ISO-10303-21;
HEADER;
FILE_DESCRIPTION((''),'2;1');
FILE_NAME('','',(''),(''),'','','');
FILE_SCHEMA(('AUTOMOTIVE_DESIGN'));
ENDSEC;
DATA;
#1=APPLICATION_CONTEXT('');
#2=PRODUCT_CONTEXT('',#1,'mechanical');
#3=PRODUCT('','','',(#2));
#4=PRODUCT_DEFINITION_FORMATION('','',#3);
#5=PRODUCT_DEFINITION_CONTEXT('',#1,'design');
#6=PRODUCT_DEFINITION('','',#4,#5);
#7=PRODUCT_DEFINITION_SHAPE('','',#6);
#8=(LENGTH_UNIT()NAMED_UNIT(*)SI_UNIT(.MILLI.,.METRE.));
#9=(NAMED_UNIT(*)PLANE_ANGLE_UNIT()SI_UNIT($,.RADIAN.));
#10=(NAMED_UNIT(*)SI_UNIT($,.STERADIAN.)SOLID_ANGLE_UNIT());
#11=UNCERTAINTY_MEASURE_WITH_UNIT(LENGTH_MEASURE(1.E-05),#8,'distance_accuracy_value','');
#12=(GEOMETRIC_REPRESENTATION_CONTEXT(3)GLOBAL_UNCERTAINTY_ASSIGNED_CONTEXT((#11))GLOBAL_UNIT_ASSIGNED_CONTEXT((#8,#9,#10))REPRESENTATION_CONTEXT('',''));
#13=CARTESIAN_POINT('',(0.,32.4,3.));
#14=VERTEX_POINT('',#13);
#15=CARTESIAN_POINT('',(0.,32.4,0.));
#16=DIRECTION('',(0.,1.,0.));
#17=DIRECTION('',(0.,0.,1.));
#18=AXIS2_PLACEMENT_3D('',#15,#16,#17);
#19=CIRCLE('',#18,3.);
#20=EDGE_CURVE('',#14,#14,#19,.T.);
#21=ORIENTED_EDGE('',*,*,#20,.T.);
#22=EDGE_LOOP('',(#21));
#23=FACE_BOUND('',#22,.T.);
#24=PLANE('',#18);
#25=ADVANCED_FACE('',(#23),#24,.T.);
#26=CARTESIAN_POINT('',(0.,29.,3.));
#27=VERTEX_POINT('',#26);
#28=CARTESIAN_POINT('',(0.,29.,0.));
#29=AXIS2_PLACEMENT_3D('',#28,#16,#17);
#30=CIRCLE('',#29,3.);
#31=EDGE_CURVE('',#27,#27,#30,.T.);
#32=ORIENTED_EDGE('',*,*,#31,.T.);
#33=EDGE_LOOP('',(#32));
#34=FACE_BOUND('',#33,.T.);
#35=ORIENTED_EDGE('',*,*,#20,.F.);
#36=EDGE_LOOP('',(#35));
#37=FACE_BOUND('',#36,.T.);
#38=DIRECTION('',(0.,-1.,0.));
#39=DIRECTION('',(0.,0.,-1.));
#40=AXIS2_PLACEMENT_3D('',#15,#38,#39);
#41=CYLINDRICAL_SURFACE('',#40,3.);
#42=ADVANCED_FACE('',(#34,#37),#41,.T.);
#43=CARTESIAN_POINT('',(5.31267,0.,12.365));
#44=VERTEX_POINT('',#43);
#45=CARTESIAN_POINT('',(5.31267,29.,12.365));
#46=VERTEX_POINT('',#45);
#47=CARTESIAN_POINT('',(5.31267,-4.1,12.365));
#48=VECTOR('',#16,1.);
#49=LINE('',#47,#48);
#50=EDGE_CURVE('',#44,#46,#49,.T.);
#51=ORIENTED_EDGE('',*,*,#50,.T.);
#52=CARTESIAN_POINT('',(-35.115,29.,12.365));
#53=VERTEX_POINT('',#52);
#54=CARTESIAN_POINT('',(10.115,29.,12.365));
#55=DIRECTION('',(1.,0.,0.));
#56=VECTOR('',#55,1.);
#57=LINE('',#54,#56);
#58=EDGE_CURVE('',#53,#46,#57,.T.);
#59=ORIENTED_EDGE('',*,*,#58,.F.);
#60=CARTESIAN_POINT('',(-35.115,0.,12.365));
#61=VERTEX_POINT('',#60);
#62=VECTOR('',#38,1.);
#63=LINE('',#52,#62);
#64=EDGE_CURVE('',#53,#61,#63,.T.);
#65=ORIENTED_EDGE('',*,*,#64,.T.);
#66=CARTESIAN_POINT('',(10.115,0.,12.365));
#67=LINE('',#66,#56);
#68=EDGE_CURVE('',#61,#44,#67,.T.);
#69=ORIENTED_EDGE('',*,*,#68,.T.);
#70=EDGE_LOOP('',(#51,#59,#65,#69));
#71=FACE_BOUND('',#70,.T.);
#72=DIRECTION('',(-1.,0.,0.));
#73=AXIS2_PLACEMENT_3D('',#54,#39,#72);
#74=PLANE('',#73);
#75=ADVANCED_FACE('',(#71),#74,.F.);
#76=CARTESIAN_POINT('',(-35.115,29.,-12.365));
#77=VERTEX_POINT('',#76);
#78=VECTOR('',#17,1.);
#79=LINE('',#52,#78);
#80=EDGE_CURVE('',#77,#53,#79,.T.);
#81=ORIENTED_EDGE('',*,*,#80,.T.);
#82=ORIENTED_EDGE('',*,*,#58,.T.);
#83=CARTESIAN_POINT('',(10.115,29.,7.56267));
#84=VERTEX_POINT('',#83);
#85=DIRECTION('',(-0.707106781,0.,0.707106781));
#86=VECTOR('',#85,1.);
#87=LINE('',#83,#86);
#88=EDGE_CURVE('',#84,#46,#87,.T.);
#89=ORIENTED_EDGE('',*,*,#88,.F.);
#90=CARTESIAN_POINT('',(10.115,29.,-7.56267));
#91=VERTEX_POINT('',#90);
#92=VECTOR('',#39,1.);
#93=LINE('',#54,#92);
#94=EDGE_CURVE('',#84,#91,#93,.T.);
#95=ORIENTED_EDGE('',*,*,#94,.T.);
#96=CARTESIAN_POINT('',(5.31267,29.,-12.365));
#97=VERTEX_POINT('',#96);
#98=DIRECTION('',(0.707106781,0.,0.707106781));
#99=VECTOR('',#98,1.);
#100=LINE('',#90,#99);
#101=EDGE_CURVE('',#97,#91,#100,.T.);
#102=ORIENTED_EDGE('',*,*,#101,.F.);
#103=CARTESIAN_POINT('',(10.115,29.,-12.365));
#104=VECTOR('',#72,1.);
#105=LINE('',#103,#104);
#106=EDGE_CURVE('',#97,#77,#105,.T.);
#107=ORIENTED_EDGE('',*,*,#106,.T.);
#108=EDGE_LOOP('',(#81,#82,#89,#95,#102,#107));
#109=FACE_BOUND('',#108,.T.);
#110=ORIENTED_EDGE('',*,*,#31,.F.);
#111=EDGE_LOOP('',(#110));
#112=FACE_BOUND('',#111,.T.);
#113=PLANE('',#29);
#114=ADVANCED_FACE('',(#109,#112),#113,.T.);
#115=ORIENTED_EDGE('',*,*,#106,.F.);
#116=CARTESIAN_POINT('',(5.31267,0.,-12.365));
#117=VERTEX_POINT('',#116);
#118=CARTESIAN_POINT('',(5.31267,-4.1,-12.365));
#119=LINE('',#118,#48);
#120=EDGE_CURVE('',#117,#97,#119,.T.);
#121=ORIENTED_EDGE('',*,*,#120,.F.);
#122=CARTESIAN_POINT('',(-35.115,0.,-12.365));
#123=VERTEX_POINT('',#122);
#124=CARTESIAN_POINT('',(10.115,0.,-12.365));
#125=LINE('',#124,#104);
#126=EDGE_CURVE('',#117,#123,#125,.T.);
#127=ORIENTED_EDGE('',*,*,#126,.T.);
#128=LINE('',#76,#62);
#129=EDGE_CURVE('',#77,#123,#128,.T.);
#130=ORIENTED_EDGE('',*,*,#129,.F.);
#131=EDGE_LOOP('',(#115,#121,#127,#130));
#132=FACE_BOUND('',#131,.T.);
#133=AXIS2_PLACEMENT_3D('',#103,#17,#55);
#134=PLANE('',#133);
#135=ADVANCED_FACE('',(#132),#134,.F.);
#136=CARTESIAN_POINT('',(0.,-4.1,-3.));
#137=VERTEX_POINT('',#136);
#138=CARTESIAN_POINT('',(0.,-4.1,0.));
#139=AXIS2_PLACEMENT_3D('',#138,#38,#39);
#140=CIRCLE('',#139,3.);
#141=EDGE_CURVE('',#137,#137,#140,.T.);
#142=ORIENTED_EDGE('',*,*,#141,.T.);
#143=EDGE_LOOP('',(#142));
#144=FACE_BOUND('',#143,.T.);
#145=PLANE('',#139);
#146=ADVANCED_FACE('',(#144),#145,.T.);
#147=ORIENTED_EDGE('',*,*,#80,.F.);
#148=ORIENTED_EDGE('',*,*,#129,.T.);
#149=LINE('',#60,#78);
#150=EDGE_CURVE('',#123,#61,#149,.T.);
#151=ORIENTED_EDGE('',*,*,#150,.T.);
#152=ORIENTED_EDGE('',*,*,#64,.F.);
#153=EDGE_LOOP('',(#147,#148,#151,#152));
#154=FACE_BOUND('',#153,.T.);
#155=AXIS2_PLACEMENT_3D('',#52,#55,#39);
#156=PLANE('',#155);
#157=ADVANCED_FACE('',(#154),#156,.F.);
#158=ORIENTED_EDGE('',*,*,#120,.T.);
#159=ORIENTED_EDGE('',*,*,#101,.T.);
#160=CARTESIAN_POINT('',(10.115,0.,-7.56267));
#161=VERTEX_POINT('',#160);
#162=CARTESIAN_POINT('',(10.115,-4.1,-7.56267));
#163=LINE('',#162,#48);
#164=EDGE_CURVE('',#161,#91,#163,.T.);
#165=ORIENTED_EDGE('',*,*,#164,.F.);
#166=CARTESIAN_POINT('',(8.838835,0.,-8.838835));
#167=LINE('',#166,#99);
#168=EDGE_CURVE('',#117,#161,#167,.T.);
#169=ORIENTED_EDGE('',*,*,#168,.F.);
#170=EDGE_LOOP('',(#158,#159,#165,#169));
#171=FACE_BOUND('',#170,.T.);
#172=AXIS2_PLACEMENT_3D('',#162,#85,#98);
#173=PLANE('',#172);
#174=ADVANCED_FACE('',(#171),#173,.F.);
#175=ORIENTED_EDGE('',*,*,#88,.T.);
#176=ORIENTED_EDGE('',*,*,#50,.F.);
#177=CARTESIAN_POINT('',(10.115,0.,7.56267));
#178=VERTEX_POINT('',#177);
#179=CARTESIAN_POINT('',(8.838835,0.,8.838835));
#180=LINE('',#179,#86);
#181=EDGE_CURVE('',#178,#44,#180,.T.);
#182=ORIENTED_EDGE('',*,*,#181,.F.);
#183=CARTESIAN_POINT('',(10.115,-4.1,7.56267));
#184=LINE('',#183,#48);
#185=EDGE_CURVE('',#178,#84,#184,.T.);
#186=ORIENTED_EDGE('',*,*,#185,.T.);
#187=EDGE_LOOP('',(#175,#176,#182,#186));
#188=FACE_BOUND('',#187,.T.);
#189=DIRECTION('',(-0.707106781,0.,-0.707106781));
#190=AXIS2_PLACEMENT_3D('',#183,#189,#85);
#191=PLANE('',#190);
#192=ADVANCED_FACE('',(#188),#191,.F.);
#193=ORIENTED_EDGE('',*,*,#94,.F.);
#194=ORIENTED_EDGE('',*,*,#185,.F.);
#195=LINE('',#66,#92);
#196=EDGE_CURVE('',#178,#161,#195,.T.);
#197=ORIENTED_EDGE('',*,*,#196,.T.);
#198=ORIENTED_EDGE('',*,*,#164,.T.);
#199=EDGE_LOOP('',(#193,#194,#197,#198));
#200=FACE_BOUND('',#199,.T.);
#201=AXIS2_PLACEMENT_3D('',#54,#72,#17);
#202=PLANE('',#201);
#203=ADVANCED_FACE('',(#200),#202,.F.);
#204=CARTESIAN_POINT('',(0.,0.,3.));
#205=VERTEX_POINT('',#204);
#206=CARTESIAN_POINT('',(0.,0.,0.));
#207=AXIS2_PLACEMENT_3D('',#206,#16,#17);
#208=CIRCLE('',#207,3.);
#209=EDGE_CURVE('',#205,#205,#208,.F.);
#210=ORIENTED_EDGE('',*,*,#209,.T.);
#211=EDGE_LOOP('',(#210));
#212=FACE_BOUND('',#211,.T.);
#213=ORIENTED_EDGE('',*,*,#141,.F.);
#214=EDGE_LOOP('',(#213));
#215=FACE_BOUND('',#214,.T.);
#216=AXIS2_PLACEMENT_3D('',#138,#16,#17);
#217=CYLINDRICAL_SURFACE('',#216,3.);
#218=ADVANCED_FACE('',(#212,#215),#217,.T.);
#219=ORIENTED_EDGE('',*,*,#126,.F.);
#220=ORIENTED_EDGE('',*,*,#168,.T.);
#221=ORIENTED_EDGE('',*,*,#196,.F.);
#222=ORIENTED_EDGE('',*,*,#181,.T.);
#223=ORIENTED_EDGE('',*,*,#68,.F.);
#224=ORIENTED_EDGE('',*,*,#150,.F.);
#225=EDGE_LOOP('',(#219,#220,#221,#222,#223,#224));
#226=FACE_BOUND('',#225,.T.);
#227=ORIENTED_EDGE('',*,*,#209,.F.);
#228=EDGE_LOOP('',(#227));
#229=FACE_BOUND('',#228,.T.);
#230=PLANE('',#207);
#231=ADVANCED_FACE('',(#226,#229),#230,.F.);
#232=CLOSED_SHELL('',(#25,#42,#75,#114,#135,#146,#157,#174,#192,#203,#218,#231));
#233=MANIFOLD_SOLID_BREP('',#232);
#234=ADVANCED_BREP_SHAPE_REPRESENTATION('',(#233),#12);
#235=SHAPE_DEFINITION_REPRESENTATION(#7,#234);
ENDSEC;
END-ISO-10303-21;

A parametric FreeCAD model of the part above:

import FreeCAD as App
import Part
import Sketcher
from FreeCAD import Vector


def add_polygon(sketch, points):
    """Adds a closed chain of lines whose ends are joined by coincident constraints."""
    first, n = sketch.GeometryCount, len(points)
    for a, b in zip(points, points[1:] + points[:1]):
        sketch.addGeometry(Part.LineSegment(App.Vector(*a, 0), App.Vector(*b, 0)), False)
    for i in range(n):
        sketch.addConstraint(Sketcher.Constraint("Coincident", first + i, 2, first + (i + 1) % n, 1))

doc = App.newDocument("Part")
body = doc.addObject("PartDesign::Body", "Body")

sketch1 = body.newObject("Sketcher::SketchObject", "Sketch")
sketch1.AttachmentSupport = (doc.getObject("XZ_Plane"), [""])
sketch1.MapMode = "FlatFace"
add_polygon(sketch1, [(-35, -12), (-35, 12), (10, 12), (10, -12)])
sketch1.addConstraint(Sketcher.Constraint("Vertical", 0))
sketch1.addConstraint(Sketcher.Constraint("Horizontal", 1))
sketch1.addConstraint(Sketcher.Constraint("Vertical", 2))
sketch1.addConstraint(Sketcher.Constraint("Horizontal", 3))
sketch1.addConstraint(Sketcher.Constraint("DistanceX", 1, 1, 1, 2, 45.23))
sketch1.addConstraint(Sketcher.Constraint("DistanceY", 0, 1, 0, 2, 24.73))
sketch1.addConstraint(Sketcher.Constraint("DistanceX", 0, 2, -1, 1, 35.115))
sketch1.addConstraint(Sketcher.Constraint("DistanceY", -1, 1, 0, 2, 12.365))
pad1 = body.newObject("PartDesign::Pad", "Pad")
pad1.Profile = sketch1
pad1.Length = 29
pad1.Reversed = True

sketch2 = body.newObject("Sketcher::SketchObject", "Sketch001")
sketch2.AttachmentSupport = (doc.getObject("XZ_Plane"), [""])
sketch2.MapMode = "FlatFace"
sketch2.AttachmentOffset = App.Placement(Vector(0, 0, -29), App.Rotation())
sketch2.addGeometry(Part.Circle(Vector(0, 0, 0), Vector(0, 0, 1), 3), False)
sketch2.addConstraint(Sketcher.Constraint("Coincident", 0, 3, -1, 1))
sketch2.addConstraint(Sketcher.Constraint("Diameter", 0, 6.0))
pad2 = body.newObject("PartDesign::Pad", "Pad001")
pad2.Profile = sketch2
pad2.Length = 3.4
pad2.Reversed = True

sketch3 = body.newObject("Sketcher::SketchObject", "Sketch002")
sketch3.AttachmentSupport = (doc.getObject("XZ_Plane"), [""])
sketch3.MapMode = "FlatFace"
sketch3.AttachmentOffset = App.Placement(Vector(0, 0, 4.1), App.Rotation())
sketch3.addGeometry(Part.Circle(Vector(0, 0, 0), Vector(0, 0, 1), 3), False)
sketch3.addConstraint(Sketcher.Constraint("Coincident", 0, 3, -1, 1))
sketch3.addConstraint(Sketcher.Constraint("Diameter", 0, 6.0))
pad3 = body.newObject("PartDesign::Pad", "Pad002")
pad3.Profile = sketch3
pad3.Length = 4.1
pad3.Reversed = True

sketch4 = body.newObject("Sketcher::SketchObject", "Sketch003")
sketch4.AttachmentSupport = (doc.getObject("XZ_Plane"), [""])
sketch4.MapMode = "FlatFace"
sketch4.AttachmentOffset = App.Placement(Vector(0, 0, -29), App.Rotation())
add_polygon(sketch4, [(10.1, -12.4), (5.3, -12.4), (10.1, -7.6)])
add_polygon(sketch4, [(5.3, 12.4), (10.1, 12.4), (10.1, 7.6)])
sketch4.addConstraint(Sketcher.Constraint("Horizontal", 0))
sketch4.addConstraint(Sketcher.Constraint("Vertical", 2))
sketch4.addConstraint(Sketcher.Constraint("Horizontal", 3))
sketch4.addConstraint(Sketcher.Constraint("Vertical", 4))
sketch4.addConstraint(Sketcher.Constraint("Symmetric", 2, 2, 3, 2, -1))
sketch4.addConstraint(Sketcher.Constraint("Perpendicular", 1, 5))
sketch4.addConstraint(Sketcher.Constraint("Vertical", 0, 2, 5, 2))
sketch4.addConstraint(Sketcher.Constraint("Equal", 3, 2))
sketch4.addConstraint(Sketcher.Constraint("DistanceY", 2, 2, 3, 2, 24.73))
sketch4.addConstraint(Sketcher.Constraint("DistanceX", -1, 1, 1, 2, 10.115))
sketch4.addConstraint(Sketcher.Constraint("DistanceX", 0, 2, 0, 1, 4.80233))
pocket1 = body.newObject("PartDesign::Pocket", "Pocket")
pocket1.Profile = sketch4
pocket1.Type = "ThroughAll"
pocket1.Reversed = True

doc.recompute()
